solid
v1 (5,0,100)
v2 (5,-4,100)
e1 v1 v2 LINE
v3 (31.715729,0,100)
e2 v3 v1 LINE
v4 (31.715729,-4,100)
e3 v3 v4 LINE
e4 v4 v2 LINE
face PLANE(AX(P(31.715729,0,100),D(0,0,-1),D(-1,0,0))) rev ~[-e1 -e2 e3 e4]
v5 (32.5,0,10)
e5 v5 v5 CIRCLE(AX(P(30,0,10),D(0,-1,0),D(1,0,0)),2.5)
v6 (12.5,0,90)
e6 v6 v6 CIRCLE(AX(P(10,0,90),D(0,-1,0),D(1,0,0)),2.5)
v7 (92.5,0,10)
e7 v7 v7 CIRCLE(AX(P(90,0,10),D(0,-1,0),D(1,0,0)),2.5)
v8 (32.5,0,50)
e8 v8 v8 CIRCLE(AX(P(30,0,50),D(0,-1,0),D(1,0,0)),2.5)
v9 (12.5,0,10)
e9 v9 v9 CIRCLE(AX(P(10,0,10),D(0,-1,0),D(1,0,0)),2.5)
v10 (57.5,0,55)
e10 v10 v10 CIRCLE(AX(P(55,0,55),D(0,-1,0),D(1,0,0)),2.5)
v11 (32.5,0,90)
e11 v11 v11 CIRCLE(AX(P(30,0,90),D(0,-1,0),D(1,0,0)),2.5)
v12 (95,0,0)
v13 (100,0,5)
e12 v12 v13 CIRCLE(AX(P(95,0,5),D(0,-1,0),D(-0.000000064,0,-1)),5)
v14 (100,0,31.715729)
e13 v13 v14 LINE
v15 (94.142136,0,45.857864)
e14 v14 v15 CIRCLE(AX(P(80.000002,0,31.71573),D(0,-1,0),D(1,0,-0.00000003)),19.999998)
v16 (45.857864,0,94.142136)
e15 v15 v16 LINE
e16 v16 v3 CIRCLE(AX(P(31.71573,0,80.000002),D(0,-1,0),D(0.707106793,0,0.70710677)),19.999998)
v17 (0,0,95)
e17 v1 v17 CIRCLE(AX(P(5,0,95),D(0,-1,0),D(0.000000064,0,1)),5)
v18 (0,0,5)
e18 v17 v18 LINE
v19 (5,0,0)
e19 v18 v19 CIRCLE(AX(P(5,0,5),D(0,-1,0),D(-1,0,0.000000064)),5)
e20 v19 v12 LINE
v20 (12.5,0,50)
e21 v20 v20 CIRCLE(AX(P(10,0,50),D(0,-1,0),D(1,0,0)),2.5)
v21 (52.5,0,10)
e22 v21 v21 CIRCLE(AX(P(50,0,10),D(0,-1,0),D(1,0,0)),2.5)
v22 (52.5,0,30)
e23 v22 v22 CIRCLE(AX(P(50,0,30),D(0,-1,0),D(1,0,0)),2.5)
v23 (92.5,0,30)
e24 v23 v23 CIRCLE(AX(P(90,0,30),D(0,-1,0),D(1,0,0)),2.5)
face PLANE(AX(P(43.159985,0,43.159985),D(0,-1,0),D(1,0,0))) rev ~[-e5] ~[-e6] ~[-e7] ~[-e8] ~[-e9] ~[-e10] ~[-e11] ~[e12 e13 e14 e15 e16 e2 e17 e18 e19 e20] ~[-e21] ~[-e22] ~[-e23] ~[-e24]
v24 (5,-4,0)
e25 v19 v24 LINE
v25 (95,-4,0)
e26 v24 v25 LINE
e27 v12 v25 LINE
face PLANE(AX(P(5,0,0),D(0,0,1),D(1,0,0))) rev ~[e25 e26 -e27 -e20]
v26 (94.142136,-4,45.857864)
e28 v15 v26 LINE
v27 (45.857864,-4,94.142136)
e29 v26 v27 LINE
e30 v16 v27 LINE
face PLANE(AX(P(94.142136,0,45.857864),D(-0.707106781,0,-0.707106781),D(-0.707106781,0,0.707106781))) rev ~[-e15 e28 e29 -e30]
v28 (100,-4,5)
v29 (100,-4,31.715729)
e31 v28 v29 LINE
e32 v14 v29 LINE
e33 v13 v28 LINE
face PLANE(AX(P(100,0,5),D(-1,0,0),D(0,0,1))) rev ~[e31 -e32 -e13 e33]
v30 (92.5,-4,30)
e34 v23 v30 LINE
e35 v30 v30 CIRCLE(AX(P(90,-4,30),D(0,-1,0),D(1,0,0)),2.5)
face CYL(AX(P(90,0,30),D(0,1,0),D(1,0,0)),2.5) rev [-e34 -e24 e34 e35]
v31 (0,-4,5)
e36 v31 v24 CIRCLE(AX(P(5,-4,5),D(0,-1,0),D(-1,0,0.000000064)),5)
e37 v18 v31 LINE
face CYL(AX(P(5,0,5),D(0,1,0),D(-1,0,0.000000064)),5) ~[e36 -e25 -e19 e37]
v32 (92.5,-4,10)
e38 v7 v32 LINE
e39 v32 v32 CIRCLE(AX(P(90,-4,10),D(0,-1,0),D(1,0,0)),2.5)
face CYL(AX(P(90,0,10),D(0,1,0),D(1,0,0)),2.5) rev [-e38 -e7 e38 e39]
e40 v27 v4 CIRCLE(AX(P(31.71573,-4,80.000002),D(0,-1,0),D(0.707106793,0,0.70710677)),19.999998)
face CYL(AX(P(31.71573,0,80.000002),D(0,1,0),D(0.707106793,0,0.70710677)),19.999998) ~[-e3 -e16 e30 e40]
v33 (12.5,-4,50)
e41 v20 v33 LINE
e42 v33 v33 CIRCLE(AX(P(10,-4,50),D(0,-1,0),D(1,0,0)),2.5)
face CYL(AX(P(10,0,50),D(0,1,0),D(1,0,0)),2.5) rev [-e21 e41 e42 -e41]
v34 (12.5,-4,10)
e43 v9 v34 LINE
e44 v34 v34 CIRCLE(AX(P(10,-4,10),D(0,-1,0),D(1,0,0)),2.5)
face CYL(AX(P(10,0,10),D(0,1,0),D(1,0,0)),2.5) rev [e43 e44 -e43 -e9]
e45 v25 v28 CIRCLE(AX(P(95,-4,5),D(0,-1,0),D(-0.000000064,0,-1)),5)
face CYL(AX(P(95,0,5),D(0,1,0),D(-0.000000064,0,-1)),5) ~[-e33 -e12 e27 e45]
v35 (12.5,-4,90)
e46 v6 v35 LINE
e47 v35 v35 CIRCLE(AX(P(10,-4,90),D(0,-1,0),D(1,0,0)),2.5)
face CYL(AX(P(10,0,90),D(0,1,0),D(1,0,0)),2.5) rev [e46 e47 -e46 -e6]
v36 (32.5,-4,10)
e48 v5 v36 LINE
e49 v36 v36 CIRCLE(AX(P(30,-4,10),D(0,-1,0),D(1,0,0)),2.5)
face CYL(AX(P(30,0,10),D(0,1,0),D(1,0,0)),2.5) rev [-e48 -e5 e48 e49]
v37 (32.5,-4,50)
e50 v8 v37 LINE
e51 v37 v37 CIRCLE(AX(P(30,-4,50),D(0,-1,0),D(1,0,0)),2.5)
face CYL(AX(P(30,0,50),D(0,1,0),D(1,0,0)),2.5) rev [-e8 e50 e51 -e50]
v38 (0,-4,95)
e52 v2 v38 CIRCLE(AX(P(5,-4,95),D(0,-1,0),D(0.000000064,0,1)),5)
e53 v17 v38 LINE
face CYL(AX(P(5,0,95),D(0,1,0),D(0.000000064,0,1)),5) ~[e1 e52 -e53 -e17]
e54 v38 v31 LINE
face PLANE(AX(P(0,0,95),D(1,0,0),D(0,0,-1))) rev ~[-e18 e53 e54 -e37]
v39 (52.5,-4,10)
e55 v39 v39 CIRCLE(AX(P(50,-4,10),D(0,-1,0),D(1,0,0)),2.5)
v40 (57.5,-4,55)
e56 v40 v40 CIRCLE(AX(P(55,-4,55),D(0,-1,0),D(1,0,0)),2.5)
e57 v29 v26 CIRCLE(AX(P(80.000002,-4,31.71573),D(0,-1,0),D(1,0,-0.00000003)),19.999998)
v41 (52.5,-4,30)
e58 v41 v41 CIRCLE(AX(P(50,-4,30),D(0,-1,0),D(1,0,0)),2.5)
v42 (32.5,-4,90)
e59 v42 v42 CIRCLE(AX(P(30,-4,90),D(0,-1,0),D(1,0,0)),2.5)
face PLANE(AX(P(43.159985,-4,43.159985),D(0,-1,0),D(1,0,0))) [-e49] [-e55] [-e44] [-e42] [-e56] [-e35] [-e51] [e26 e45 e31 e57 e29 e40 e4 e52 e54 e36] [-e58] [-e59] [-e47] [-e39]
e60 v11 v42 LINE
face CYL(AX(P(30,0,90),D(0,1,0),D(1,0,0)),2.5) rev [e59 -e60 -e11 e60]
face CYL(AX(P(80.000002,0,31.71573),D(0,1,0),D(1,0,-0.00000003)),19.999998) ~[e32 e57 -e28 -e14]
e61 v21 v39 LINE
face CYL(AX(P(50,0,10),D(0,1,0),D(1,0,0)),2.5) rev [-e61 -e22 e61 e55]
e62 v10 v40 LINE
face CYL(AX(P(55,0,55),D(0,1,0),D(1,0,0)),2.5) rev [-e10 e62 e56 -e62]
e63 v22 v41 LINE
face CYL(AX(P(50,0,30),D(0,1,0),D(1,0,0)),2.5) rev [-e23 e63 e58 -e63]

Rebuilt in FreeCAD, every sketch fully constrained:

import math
import FreeCAD as App
import Part
import Sketcher

V = App.Vector
Q = App.Units.Quantity

doc = App.newDocument("Part")
params = doc.addObject("Spreadsheet::Sheet", "Params")
for row, (alias, value) in enumerate([
    ("sketch1_diameter", "5 mm"),
    ("sketch1_radius", "5 mm"),
    ("sketch1_width", "90 mm"),
    ("pad1_length", "4 mm"),
], start=1):
    params.set(f"A{row}", alias)
    params.set(f"B{row}", "=" + value)
    params.setAlias(f"B{row}", alias)

body = doc.addObject("PartDesign::Body", "Body")

sketch1 = body.newObject("Sketcher::SketchObject", "Sketch")
sketch1.AttachmentSupport = (doc.getObject("XZ_Plane"), [""])
sketch1.MapMode = "FlatFace"
sketch1.addGeometry([
    Part.LineSegment(V(0, 95, 0), V(0, 5, 0)),
    Part.ArcOfCircle(Part.Circle(V(5, 5, 0), V(0, 0, 1), 5), math.radians(180), math.radians(270)),
    Part.LineSegment(V(5, 0, 0), V(95, 0, 0)),
    Part.ArcOfCircle(Part.Circle(V(95, 5, 0), V(0, 0, 1), 5), math.radians(-90), math.radians(0)),
    Part.LineSegment(V(100, 5, 0), V(100, 31.7, 0)),
    Part.ArcOfCircle(Part.Circle(V(80, 31.7, 0), V(0, 0, 1), 20), math.radians(0), math.radians(45)),
    Part.LineSegment(V(94.1, 45.9, 0), V(45.9, 94.1, 0)),
    Part.ArcOfCircle(Part.Circle(V(31.7, 80, 0), V(0, 0, 1), 20), math.radians(45), math.radians(90)),
    Part.LineSegment(V(31.7, 100, 0), V(5, 100, 0)),
    Part.ArcOfCircle(Part.Circle(V(5, 95, 0), V(0, 0, 1), 5), math.radians(90), math.radians(180)),
    Part.Circle(V(10, 10, 0), V(0, 0, 1), 2.5),
    Part.Circle(V(30, 10, 0), V(0, 0, 1), 2.5),
    Part.Circle(V(50, 10, 0), V(0, 0, 1), 2.5),
    Part.Circle(V(90, 10, 0), V(0, 0, 1), 2.5),
    Part.Circle(V(50, 30, 0), V(0, 0, 1), 2.5),
    Part.Circle(V(90, 30, 0), V(0, 0, 1), 2.5),
    Part.Circle(V(10, 50, 0), V(0, 0, 1), 2.5),
    Part.Circle(V(30, 50, 0), V(0, 0, 1), 2.5),
    Part.Circle(V(10, 90, 0), V(0, 0, 1), 2.5),
    Part.Circle(V(30, 90, 0), V(0, 0, 1), 2.5),
    Part.Circle(V(55, 55, 0), V(0, 0, 1), 2.5),
], False)
sketch1.addConstraint([
    Sketcher.Constraint("Tangent", 0, 2, 1, 1),
    Sketcher.Constraint("Tangent", 1, 2, 2, 1),
    Sketcher.Constraint("Tangent", 2, 2, 3, 1),
    Sketcher.Constraint("Tangent", 3, 2, 4, 1),
    Sketcher.Constraint("Tangent", 4, 2, 5, 1),
    Sketcher.Constraint("Tangent", 5, 2, 6, 1),
    Sketcher.Constraint("Tangent", 6, 2, 7, 1),
    Sketcher.Constraint("Tangent", 7, 2, 8, 1),
    Sketcher.Constraint("Tangent", 8, 2, 9, 1),
    Sketcher.Constraint("Tangent", 9, 2, 0, 1),
    Sketcher.Constraint("Vertical", 0),
    Sketcher.Constraint("Horizontal", 2),
    Sketcher.Constraint("Vertical", 4),
    Sketcher.Constraint("Horizontal", 8),
    Sketcher.Constraint("Equal", 1, 3),
    Sketcher.Constraint("Equal", 5, 7),
    Sketcher.Constraint("Equal", 3, 9),
    Sketcher.Constraint("Equal", 10, 11),
    Sketcher.Constraint("Equal", 11, 12),
    Sketcher.Constraint("Equal", 12, 13),
    Sketcher.Constraint("Equal", 13, 14),
    Sketcher.Constraint("Equal", 14, 15),
    Sketcher.Constraint("Equal", 15, 16),
    Sketcher.Constraint("Equal", 16, 17),
    Sketcher.Constraint("Equal", 17, 18),
    Sketcher.Constraint("Equal", 18, 19),
    Sketcher.Constraint("Equal", 19, 20),
    Sketcher.Constraint("PointOnObject", 0, 2, -2),
    Sketcher.Constraint("PointOnObject", 1, 2, -1),
    Sketcher.Constraint("Horizontal", 10, 3, 11, 3),
    Sketcher.Constraint("Horizontal", 11, 3, 12, 3),
    Sketcher.Constraint("Horizontal", 12, 3, 13, 3),
    Sketcher.Constraint("Horizontal", 14, 3, 15, 3),
    Sketcher.Constraint("Horizontal", 16, 3, 17, 3),
    Sketcher.Constraint("Horizontal", 18, 3, 19, 3),
    Sketcher.Constraint("Vertical", 12, 3, 14, 3),
    Sketcher.Constraint("Vertical", 13, 3, 15, 3),
    Sketcher.Constraint("Vertical", 10, 3, 16, 3),
    Sketcher.Constraint("Vertical", 11, 3, 17, 3),
    Sketcher.Constraint("Vertical", 16, 3, 18, 3),
    Sketcher.Constraint("Vertical", 17, 3, 19, 3),
    Sketcher.Constraint("Equal", 2, 0),
    Sketcher.Constraint("Equal", 8, 4),
    Sketcher.Constraint("Diameter", 10, Q("5 mm")),
    Sketcher.Constraint("Radius", 1, Q("5 mm")),
    Sketcher.Constraint("DistanceX", 2, 1, 2, 2, Q("90 mm")),
    Sketcher.Constraint("DistanceX", -1, 1, 10, 3, Q("10 mm")),
    Sketcher.Constraint("DistanceY", -1, 1, 10, 3, Q("10 mm")),
    Sketcher.Constraint("DistanceX", -1, 1, 11, 3, Q("30 mm")),
    Sketcher.Constraint("DistanceX", -1, 1, 12, 3, Q("50 mm")),
    Sketcher.Constraint("DistanceX", -1, 1, 13, 3, Q("90 mm")),
    Sketcher.Constraint("DistanceY", -1, 1, 14, 3, Q("30 mm")),
    Sketcher.Constraint("DistanceY", -1, 1, 16, 3, Q("50 mm")),
    Sketcher.Constraint("DistanceY", -1, 1, 18, 3, Q("90 mm")),
    Sketcher.Constraint("DistanceX", -1, 1, 20, 3, Q("55 mm")),
    Sketcher.Constraint("DistanceY", -1, 1, 20, 3, Q("55 mm")),
    Sketcher.Constraint("DistanceX", 5, 3, 3, 3, Q("14.999998 mm")),
    Sketcher.Constraint("DistanceX", 8, 2, 8, 1, Q("26.715729 mm")),
])
sketch1.setExpression("Constraints[43]", "Params.sketch1_diameter")
sketch1.setExpression("Constraints[44]", "Params.sketch1_radius")
sketch1.setExpression("Constraints[45]", "Params.sketch1_width")
pad1 = body.newObject("PartDesign::Pad", "Pad")
pad1.Profile = sketch1
pad1.setExpression("Length", "Params.pad1_length")

doc.recompute()
